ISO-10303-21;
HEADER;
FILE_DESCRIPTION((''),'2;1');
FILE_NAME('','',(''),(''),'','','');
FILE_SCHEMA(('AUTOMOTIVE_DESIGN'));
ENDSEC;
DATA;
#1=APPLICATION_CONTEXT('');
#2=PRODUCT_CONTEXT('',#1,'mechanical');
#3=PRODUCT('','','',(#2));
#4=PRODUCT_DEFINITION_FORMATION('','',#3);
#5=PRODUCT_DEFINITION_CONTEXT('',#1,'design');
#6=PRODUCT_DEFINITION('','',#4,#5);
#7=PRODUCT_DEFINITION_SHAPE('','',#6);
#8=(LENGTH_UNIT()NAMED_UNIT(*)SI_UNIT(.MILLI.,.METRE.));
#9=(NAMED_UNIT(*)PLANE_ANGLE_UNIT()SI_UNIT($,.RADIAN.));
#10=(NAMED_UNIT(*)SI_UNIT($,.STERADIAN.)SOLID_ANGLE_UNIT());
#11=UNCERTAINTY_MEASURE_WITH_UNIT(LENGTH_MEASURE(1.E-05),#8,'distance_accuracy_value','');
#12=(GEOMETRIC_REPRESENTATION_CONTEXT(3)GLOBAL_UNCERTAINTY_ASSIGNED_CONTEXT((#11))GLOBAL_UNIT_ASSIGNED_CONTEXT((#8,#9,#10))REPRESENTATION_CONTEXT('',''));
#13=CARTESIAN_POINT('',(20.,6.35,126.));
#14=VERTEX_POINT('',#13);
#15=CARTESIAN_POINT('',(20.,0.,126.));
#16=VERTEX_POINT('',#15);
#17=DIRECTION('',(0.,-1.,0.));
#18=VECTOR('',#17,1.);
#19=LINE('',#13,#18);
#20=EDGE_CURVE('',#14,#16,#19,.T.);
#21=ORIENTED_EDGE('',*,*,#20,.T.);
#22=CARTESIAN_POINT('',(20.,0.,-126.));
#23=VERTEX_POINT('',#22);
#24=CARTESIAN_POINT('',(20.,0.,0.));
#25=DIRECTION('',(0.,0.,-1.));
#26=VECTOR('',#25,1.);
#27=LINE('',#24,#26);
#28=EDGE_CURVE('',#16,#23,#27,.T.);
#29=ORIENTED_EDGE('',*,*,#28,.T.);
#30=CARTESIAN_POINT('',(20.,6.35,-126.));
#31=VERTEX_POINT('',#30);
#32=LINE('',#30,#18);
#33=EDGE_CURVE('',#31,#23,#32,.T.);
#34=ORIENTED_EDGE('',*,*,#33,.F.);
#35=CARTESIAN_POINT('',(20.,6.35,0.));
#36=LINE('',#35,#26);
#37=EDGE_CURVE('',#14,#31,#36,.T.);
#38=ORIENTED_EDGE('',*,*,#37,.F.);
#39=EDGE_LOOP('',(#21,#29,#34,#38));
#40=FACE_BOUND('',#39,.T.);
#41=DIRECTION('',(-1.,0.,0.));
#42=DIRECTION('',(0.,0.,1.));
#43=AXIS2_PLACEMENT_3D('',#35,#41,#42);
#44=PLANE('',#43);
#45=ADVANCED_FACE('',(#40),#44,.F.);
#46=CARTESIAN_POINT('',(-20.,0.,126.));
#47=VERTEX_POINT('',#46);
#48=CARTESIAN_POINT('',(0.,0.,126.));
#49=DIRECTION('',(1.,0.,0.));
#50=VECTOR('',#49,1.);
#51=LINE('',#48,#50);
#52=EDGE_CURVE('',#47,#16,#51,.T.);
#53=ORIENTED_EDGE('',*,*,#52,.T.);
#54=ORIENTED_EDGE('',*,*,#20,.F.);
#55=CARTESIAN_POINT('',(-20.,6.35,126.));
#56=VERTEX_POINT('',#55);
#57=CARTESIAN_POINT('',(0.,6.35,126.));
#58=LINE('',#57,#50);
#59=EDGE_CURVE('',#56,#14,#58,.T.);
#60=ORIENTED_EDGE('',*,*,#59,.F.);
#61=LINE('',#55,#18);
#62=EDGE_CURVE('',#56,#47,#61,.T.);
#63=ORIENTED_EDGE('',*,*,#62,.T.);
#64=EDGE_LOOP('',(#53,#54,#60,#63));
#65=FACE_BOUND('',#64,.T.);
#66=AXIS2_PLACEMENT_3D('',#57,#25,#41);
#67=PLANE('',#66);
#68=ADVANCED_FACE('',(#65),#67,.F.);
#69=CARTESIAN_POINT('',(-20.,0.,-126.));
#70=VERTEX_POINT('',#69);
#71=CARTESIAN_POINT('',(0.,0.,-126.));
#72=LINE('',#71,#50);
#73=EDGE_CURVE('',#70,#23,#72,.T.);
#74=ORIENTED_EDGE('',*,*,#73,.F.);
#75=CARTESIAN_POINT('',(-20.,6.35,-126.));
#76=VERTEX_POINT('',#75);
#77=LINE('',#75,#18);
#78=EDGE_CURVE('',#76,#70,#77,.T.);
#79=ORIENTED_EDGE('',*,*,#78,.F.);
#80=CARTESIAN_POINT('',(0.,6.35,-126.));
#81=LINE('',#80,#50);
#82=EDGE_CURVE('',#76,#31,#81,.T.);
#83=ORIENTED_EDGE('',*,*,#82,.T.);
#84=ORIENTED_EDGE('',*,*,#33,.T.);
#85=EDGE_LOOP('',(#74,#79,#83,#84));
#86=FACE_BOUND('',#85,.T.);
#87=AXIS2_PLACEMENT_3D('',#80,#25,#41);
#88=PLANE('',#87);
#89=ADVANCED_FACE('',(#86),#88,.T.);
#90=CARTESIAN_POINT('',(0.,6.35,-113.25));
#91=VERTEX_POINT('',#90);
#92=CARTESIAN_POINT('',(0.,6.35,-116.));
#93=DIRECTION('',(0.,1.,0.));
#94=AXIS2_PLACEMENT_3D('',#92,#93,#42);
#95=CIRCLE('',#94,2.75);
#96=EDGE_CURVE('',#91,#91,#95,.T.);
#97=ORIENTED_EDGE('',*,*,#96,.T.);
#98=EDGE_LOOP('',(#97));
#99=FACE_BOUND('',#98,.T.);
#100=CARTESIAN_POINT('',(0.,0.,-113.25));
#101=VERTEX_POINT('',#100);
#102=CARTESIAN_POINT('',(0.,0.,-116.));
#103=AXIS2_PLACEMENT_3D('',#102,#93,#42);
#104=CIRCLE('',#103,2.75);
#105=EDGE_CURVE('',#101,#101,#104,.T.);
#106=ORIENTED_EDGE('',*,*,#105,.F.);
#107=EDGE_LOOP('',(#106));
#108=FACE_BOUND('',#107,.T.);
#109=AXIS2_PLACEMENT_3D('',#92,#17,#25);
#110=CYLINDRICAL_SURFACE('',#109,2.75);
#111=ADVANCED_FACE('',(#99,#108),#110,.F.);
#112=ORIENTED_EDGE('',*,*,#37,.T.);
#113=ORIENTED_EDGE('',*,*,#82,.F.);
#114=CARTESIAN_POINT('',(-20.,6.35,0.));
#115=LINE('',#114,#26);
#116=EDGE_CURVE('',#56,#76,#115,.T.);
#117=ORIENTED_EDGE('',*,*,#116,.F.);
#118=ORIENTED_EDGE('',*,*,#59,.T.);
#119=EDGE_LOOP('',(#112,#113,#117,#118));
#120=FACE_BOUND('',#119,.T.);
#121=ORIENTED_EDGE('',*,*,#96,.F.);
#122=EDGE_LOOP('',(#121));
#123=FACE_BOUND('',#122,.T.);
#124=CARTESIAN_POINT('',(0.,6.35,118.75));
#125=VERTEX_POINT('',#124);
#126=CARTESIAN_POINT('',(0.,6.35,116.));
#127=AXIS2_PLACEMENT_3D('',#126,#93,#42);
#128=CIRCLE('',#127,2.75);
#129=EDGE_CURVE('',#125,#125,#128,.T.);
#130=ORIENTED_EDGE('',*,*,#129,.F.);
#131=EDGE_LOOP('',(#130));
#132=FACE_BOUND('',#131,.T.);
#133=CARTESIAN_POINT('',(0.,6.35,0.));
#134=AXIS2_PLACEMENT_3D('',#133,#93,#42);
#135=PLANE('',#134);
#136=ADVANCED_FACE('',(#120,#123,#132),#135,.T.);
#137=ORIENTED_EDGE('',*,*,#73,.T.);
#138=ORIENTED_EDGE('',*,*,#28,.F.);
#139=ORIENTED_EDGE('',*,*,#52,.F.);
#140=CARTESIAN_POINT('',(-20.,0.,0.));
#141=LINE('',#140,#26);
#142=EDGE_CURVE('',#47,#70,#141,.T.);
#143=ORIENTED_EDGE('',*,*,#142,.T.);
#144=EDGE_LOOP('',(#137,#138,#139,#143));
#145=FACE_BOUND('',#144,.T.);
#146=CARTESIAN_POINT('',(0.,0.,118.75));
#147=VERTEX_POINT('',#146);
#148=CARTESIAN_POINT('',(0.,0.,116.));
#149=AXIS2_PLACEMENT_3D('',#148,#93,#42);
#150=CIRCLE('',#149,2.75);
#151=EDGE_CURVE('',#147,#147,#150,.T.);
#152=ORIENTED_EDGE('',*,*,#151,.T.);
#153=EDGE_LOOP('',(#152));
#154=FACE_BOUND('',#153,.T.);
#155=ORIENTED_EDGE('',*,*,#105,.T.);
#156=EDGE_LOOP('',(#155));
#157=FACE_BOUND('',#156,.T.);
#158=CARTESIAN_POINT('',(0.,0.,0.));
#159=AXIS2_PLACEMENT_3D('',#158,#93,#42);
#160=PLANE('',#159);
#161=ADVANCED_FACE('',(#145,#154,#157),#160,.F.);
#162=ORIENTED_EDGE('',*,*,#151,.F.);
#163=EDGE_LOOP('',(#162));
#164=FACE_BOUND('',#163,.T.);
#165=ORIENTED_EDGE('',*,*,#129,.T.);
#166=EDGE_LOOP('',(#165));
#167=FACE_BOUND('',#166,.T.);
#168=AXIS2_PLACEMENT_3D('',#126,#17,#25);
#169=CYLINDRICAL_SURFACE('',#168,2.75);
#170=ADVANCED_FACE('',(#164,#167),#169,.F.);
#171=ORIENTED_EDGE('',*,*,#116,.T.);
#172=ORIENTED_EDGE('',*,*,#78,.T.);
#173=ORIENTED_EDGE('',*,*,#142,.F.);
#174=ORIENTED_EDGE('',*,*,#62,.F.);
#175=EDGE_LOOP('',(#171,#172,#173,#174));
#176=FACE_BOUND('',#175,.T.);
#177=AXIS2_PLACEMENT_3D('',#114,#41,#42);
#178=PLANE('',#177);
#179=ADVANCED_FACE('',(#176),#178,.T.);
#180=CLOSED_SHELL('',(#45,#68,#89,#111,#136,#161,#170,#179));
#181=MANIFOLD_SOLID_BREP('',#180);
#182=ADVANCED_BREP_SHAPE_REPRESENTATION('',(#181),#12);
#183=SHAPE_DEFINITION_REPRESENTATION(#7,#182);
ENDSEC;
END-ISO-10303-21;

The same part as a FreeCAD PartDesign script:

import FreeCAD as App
import Part
import Sketcher
from FreeCAD import Vector
Q = App.Units.Quantity

doc = App.newDocument("Part")
params = doc.addObject("Spreadsheet::Sheet", "Params")
for row, (alias, value) in enumerate([
    ("sketch1_diameter", "5.5 mm"),
    ("sketch1_width", "40 mm"),
    ("sketch1_height", "252 mm"),
    ("pad1_length", "6.35 mm"),
], start=1):
    params.set(f"A{row}", alias)
    params.set(f"B{row}", "=" + value)
    params.setAlias(f"B{row}", alias)

body = doc.addObject("PartDesign::Body", "Body")

sketch1 = body.newObject("Sketcher::SketchObject", "Sketch")
sketch1.AttachmentSupport = (doc.getObject("XZ_Plane"), [""])
sketch1.MapMode = "FlatFace"
sketch1.addGeometry(Part.LineSegment(Vector(-20, -126, 0), Vector(-20, 126, 0)), False)
sketch1.addGeometry(Part.LineSegment(Vector(-20, 126, 0), Vector(20, 126, 0)), False)
sketch1.addGeometry(Part.LineSegment(Vector(20, 126, 0), Vector(20, -126, 0)), False)
sketch1.addGeometry(Part.LineSegment(Vector(20, -126, 0), Vector(-20, -126, 0)), False)
sketch1.addGeometry(Part.Circle(Vector(0, 116, 0), Vector(0, 0, 1), 2.8), False)
sketch1.addGeometry(Part.Circle(Vector(0, -116, 0), Vector(0, 0, 1), 2.8), False)
sketch1.addConstraint(Sketcher.Constraint("Coincident", 0, 2, 1, 1))
sketch1.addConstraint(Sketcher.Constraint("Coincident", 1, 2, 2, 1))
sketch1.addConstraint(Sketcher.Constraint("Coincident", 2, 2, 3, 1))
sketch1.addConstraint(Sketcher.Constraint("Coincident", 3, 2, 0, 1))
sketch1.addConstraint(Sketcher.Constraint("Vertical", 0))
sketch1.addConstraint(Sketcher.Constraint("Horizontal", 1))
sketch1.addConstraint(Sketcher.Constraint("Vertical", 2))
sketch1.addConstraint(Sketcher.Constraint("Horizontal", 3))
sketch1.addConstraint(Sketcher.Constraint("Equal", 4, 5))
sketch1.addConstraint(Sketcher.Constraint("Symmetric", 4, 3, 5, 3, -1, 1))
sketch1.addConstraint(Sketcher.Constraint("Symmetric", 0, 2, 2, 2, -1, 1))
sketch1.addConstraint(Sketcher.Constraint("PointOnObject", 4, 3, -2))
sketch1.addConstraint(Sketcher.Constraint("Diameter", 4, Q("5.5 mm")))
sketch1.addConstraint(Sketcher.Constraint("DistanceX", 1, 1, 1, 2, Q("40 mm")))
sketch1.addConstraint(Sketcher.Constraint("DistanceY", 0, 1, 0, 2, Q("252 mm")))
sketch1.addConstraint(Sketcher.Constraint("DistanceY", -1, 1, 4, 3, Q("116 mm")))
sketch1.setExpression("Constraints[12]", "Params.sketch1_diameter")
sketch1.setExpression("Constraints[13]", "Params.sketch1_width")
sketch1.setExpression("Constraints[14]", "Params.sketch1_height")
pad1 = body.newObject("PartDesign::Pad", "Pad")
pad1.Profile = sketch1
pad1.setExpression("Length", "Params.pad1_length")
pad1.Reversed = True

doc.recompute()
